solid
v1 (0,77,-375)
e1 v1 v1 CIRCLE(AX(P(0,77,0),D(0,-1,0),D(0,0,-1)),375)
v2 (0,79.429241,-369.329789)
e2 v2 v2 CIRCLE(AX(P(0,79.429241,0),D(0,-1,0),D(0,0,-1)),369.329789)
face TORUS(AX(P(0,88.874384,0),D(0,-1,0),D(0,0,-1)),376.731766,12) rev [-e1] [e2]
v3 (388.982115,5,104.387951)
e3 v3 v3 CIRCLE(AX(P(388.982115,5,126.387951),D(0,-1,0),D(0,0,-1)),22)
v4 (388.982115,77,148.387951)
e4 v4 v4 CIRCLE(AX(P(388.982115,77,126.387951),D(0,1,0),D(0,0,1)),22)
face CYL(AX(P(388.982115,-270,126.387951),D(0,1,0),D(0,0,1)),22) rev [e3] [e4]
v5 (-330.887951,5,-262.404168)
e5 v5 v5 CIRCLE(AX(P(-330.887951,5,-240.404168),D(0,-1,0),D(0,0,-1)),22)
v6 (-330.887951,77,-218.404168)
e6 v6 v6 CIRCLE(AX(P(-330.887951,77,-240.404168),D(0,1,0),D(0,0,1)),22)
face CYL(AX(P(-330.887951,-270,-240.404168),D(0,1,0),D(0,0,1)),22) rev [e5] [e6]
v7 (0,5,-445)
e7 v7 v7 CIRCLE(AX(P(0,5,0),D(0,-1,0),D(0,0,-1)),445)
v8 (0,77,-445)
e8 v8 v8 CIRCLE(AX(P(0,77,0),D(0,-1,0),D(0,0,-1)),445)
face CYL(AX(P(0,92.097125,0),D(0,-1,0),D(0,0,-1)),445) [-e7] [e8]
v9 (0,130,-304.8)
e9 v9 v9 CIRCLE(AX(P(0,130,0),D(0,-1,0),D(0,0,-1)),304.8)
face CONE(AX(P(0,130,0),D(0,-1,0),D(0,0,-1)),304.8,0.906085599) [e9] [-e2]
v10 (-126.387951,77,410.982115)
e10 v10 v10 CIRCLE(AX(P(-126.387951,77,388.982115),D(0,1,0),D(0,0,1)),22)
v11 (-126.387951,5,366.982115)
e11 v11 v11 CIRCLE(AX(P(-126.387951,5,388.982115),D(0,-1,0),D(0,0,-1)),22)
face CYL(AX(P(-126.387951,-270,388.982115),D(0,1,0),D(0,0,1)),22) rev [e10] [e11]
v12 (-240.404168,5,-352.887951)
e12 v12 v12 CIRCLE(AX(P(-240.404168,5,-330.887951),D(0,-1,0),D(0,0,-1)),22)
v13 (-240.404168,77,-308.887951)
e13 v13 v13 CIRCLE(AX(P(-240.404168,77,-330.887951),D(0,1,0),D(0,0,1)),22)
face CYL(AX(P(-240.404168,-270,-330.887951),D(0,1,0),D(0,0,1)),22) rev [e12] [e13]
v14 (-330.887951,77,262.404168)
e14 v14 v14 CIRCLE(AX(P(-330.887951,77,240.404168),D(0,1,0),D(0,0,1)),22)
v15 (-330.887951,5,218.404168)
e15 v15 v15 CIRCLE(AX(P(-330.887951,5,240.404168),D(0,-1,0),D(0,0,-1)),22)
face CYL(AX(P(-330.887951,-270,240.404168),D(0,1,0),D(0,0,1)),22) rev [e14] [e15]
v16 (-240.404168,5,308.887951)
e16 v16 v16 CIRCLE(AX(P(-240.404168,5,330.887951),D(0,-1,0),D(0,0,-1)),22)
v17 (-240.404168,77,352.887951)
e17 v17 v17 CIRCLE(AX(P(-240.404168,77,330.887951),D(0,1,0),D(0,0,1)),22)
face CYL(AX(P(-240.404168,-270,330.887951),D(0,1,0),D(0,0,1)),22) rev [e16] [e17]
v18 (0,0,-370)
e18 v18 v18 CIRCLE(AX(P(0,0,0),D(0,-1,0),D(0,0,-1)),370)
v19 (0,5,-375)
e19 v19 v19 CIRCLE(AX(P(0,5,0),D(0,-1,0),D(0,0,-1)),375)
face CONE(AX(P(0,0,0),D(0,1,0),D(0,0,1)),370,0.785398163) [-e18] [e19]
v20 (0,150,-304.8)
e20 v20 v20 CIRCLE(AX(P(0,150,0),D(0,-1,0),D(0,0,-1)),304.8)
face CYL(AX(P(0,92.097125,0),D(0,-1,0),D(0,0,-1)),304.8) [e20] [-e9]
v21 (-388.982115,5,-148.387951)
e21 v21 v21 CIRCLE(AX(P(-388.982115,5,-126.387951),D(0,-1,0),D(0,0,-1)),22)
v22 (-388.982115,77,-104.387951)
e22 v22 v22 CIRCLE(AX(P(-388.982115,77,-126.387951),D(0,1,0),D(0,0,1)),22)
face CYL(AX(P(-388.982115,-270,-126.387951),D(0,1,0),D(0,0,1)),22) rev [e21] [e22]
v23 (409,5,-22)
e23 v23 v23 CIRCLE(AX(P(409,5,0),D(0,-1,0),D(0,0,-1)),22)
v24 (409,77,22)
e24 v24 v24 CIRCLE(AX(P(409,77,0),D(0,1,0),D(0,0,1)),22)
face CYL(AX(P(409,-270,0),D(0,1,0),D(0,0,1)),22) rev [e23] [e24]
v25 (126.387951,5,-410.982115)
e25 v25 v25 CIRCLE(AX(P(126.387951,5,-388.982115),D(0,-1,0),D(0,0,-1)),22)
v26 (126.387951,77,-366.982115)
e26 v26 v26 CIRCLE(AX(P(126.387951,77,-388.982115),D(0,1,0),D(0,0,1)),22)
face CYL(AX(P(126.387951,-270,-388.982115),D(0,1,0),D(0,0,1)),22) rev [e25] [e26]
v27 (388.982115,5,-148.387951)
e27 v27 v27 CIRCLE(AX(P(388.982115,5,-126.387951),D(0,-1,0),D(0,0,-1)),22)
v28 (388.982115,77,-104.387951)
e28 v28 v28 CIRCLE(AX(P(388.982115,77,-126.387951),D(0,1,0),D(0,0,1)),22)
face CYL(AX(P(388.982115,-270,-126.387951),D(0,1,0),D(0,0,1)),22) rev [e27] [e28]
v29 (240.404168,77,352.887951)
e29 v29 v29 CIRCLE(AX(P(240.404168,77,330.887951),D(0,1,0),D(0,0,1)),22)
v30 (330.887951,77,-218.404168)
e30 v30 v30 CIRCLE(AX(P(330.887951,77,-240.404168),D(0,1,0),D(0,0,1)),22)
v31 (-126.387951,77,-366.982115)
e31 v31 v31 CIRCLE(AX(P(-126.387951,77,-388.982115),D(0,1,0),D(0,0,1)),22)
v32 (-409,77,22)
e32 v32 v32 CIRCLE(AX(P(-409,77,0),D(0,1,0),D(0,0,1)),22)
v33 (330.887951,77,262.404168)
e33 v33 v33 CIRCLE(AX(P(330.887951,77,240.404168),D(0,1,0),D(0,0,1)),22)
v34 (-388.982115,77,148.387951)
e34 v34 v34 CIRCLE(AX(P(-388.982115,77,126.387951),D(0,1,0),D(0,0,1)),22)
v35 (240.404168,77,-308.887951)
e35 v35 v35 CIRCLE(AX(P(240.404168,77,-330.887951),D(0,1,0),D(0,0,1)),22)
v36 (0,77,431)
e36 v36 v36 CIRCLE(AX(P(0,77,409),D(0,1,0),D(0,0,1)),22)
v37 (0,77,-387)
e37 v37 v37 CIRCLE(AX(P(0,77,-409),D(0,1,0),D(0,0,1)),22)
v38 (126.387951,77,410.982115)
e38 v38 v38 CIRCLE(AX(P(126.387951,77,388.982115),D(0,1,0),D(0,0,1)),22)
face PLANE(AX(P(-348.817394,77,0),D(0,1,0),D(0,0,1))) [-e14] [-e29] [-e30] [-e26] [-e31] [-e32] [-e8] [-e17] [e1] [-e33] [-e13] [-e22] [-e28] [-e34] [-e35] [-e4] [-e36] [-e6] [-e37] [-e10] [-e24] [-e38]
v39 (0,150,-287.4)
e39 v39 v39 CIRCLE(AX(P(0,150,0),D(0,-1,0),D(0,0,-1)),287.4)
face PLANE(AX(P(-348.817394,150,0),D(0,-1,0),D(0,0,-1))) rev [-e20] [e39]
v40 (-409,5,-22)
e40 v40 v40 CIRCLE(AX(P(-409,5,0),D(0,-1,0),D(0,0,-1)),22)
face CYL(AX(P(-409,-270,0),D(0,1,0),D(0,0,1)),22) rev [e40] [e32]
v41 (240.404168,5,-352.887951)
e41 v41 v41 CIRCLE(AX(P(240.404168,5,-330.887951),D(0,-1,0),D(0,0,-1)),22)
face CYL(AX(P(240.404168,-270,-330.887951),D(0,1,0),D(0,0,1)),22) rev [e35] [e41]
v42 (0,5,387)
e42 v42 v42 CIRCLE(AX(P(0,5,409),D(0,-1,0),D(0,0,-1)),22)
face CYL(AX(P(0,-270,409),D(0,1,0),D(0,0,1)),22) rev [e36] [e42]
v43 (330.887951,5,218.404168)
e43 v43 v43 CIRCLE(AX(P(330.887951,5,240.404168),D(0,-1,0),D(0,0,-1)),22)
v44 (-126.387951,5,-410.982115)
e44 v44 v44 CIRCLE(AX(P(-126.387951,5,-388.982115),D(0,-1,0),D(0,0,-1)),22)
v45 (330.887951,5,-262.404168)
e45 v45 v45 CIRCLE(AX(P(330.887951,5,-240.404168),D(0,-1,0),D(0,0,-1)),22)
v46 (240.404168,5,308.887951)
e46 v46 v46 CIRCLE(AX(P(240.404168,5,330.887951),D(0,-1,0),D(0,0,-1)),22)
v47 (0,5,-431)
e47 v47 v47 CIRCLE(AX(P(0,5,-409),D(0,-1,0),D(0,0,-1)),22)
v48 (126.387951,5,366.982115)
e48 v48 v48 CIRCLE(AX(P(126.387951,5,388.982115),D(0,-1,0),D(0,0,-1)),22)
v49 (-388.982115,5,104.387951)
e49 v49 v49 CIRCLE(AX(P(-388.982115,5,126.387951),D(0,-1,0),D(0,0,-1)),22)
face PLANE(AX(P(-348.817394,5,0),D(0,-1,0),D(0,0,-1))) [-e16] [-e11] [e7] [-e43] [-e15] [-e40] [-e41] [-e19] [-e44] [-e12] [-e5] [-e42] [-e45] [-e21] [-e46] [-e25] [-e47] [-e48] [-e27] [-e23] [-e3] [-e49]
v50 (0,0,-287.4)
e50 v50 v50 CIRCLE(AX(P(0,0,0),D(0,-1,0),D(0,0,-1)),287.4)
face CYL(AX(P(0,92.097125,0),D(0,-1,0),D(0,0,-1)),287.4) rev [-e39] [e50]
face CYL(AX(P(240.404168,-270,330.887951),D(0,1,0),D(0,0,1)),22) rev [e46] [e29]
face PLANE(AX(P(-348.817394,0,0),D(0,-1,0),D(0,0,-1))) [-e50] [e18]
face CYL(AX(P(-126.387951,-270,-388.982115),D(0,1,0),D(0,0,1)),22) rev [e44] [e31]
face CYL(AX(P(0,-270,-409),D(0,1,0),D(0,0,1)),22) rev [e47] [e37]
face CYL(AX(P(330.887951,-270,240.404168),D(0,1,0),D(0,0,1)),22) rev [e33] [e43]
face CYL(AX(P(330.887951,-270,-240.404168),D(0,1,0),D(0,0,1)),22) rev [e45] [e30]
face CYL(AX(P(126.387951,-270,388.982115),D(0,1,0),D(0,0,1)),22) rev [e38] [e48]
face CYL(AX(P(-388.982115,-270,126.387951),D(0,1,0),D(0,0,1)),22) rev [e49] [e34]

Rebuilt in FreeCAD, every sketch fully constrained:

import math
import FreeCAD as App
import Part
import Sketcher
from FreeCAD import Vector
Q = App.Units.Quantity

doc = App.newDocument("Part")
params = doc.addObject("Spreadsheet::Sheet", "Params")
for row, (alias, value) in enumerate([
    ("sketch1_radius", "12 mm"),
    ("sketch1_width", "70 mm"),
    ("sketch1_height", "20 mm"),
    ("sketch1_height2", "150 mm"),
    ("sketch1_height3", "72 mm"),
    ("revolution_angle", "360 deg"),
    ("sketch2_diameter", "44 mm"),
    ("pocket1_length", "540 mm"),
], start=1):
    params.set(f"A{row}", alias)
    params.set(f"B{row}", "=" + value)
    params.setAlias(f"B{row}", alias)

body = doc.addObject("PartDesign::Body", "Body")

sketch1 = body.newObject("Sketcher::SketchObject", "Sketch")
sketch1.AttachmentSupport = (doc.getObject("XY_Plane"), [""])
sketch1.MapMode = "FlatFace"
sketch1.addGeometry([
    Part.LineSegment(Vector(445, 77, 0), Vector(375, 77, 0)),
    Part.ArcOfCircle(Part.Circle(Vector(377, 89, 0), Vector(0, 0, 1), 12), math.radians(-128), math.radians(-98)),
    Part.LineSegment(Vector(369, 79, 0), Vector(305, 130, 0)),
    Part.LineSegment(Vector(305, 130, 0), Vector(305, 150, 0)),
    Part.LineSegment(Vector(305, 150, 0), Vector(287, 150, 0)),
    Part.LineSegment(Vector(287, 150, 0), Vector(287, 0, 0)),
    Part.LineSegment(Vector(287, 0, 0), Vector(370, 0, 0)),
    Part.LineSegment(Vector(370, 0, 0), Vector(375, 5, 0)),
    Part.LineSegment(Vector(375, 5, 0), Vector(445, 5, 0)),
    Part.LineSegment(Vector(445, 5, 0), Vector(445, 77, 0)),
], False)
sketch1.addConstraint([
    Sketcher.Constraint("Coincident", 0, 2, 1, 2),
    Sketcher.Constraint("Tangent", 1, 1, 2, 1),
    Sketcher.Constraint("Coincident", 2, 2, 3, 1),
    Sketcher.Constraint("Coincident", 3, 2, 4, 1),
    Sketcher.Constraint("Coincident", 4, 2, 5, 1),
    Sketcher.Constraint("Coincident", 5, 2, 6, 1),
    Sketcher.Constraint("Coincident", 6, 2, 7, 1),
    Sketcher.Constraint("Coincident", 7, 2, 8, 1),
    Sketcher.Constraint("Coincident", 8, 2, 9, 1),
    Sketcher.Constraint("Coincident", 9, 2, 0, 1),
    Sketcher.Constraint("Horizontal", 0),
    Sketcher.Constraint("Vertical", 3),
    Sketcher.Constraint("Horizontal", 4),
    Sketcher.Constraint("Vertical", 5),
    Sketcher.Constraint("Horizontal", 6),
    Sketcher.Constraint("Horizontal", 8),
    Sketcher.Constraint("Vertical", 9),
    Sketcher.Constraint("PointOnObject", 5, 2, -1),
    Sketcher.Constraint("Vertical", 0, 2, 7, 2),
    Sketcher.Constraint("Radius", 1, 12.0),
    Sketcher.Constraint("DistanceX", 0, 2, 0, 1, 70.0),
    Sketcher.Constraint("DistanceY", 3, 1, 3, 2, 20.0),
    Sketcher.Constraint("DistanceY", 5, 2, 5, 1, 150.0),
    Sketcher.Constraint("DistanceY", 9, 1, 9, 2, 72.0),
    Sketcher.Constraint("Angle", 7, Q("45 deg")),
    Sketcher.Constraint("DistanceX", 4, 2, 4, 1, 17.4),
    Sketcher.Constraint("DistanceX", 6, 1, 6, 2, 82.6),
    Sketcher.Constraint("DistanceX", -1, 1, 0, 2, 375.0),
    Sketcher.Constraint("DistanceY", -1, 1, 0, 2, 77.0),
    Sketcher.Constraint("DistanceX", -1, 1, 1, 1, 369.329789),
])
sketch1.setExpression("Constraints[19]", "Params.sketch1_radius")
sketch1.setExpression("Constraints[20]", "Params.sketch1_width")
sketch1.setExpression("Constraints[21]", "Params.sketch1_height")
sketch1.setExpression("Constraints[22]", "Params.sketch1_height2")
sketch1.setExpression("Constraints[23]", "Params.sketch1_height3")
revolution = body.newObject("PartDesign::Revolution", "Revolution")
revolution.Profile = sketch1
revolution.ReferenceAxis = (sketch1, ["V_Axis"])
revolution.setExpression("Angle", "Params.revolution_angle")

sketch2 = body.newObject("Sketcher::SketchObject", "Sketch001")
sketch2.AttachmentSupport = (doc.getObject("XZ_Plane"), [""])
sketch2.MapMode = "FlatFace"
sketch2.addGeometry([
    Part.Circle(Vector(409, 0, 0), Vector(0, 0, 1), 22),
    Part.Circle(Vector(389, 126, 0), Vector(0, 0, 1), 22),
    Part.Circle(Vector(331, 240, 0), Vector(0, 0, 1), 22),
    Part.Circle(Vector(240, 331, 0), Vector(0, 0, 1), 22),
    Part.Circle(Vector(126, 389, 0), Vector(0, 0, 1), 22),
    Part.Circle(Vector(0, 409, 0), Vector(0, 0, 1), 22),
    Part.Circle(Vector(-126, 389, 0), Vector(0, 0, 1), 22),
    Part.Circle(Vector(-240, 331, 0), Vector(0, 0, 1), 22),
    Part.Circle(Vector(-331, 240, 0), Vector(0, 0, 1), 22),
    Part.Circle(Vector(-389, 126, 0), Vector(0, 0, 1), 22),
    Part.Circle(Vector(-409, 0, 0), Vector(0, 0, 1), 22),
    Part.Circle(Vector(-389, -126, 0), Vector(0, 0, 1), 22),
    Part.Circle(Vector(-331, -240, 0), Vector(0, 0, 1), 22),
    Part.Circle(Vector(-240, -331, 0), Vector(0, 0, 1), 22),
    Part.Circle(Vector(-126, -389, 0), Vector(0, 0, 1), 22),
    Part.Circle(Vector(0, -409, 0), Vector(0, 0, 1), 22),
    Part.Circle(Vector(126, -389, 0), Vector(0, 0, 1), 22),
    Part.Circle(Vector(240, -331, 0), Vector(0, 0, 1), 22),
    Part.Circle(Vector(331, -240, 0), Vector(0, 0, 1), 22),
    Part.Circle(Vector(389, -126, 0), Vector(0, 0, 1), 22),
], False)
sketch2.addConstraint([
    Sketcher.Constraint("Equal", 0, 1),
    Sketcher.Constraint("Equal", 1, 2),
    Sketcher.Constraint("Equal", 2, 3),
    Sketcher.Constraint("Equal", 3, 4),
    Sketcher.Constraint("Equal", 4, 5),
    Sketcher.Constraint("Equal", 5, 6),
    Sketcher.Constraint("Equal", 6, 7),
    Sketcher.Constraint("Equal", 7, 8),
    Sketcher.Constraint("Equal", 8, 9),
    Sketcher.Constraint("Equal", 9, 10),
    Sketcher.Constraint("Equal", 10, 11),
    Sketcher.Constraint("Equal", 11, 12),
    Sketcher.Constraint("Equal", 12, 13),
    Sketcher.Constraint("Equal", 13, 14),
    Sketcher.Constraint("Equal", 14, 15),
    Sketcher.Constraint("Equal", 15, 16),
    Sketcher.Constraint("Equal", 16, 17),
    Sketcher.Constraint("Equal", 17, 18),
    Sketcher.Constraint("Equal", 18, 19),
    Sketcher.Constraint("Symmetric", 0, 3, 10, 3, -1, 1),
    Sketcher.Constraint("Symmetric", 1, 3, 11, 3, -1, 1),
    Sketcher.Constraint("Symmetric", 2, 3, 12, 3, -1, 1),
    Sketcher.Constraint("Symmetric", 3, 3, 13, 3, -1, 1),
    Sketcher.Constraint("Symmetric", 4, 3, 14, 3, -1, 1),
    Sketcher.Constraint("Symmetric", 5, 3, 15, 3, -1, 1),
    Sketcher.Constraint("Symmetric", 6, 3, 16, 3, -1, 1),
    Sketcher.Constraint("Symmetric", 7, 3, 17, 3, -1, 1),
    Sketcher.Constraint("Symmetric", 8, 3, 18, 3, -1, 1),
    Sketcher.Constraint("Symmetric", 9, 3, 19, 3, -1, 1),
    Sketcher.Constraint("Symmetric", 4, 3, 6, 3, -2),
    Sketcher.Constraint("Symmetric", 3, 3, 7, 3, -2),
    Sketcher.Constraint("Symmetric", 2, 3, 8, 3, -2),
    Sketcher.Constraint("Symmetric", 1, 3, 9, 3, -2),
    Sketcher.Constraint("PointOnObject", 0, 3, -1),
    Sketcher.Constraint("PointOnObject", 5, 3, -2),
    Sketcher.Constraint("Diameter", 0, 44.0),
    Sketcher.Constraint("DistanceX", -1, 1, 0, 3, 409.0),
    Sketcher.Constraint("DistanceY", -1, 1, 5, 3, 409.0),
    Sketcher.Constraint("DistanceY", 1, 3, 3, 3, 204.5),
    Sketcher.Constraint("DistanceX", 4, 3, 2, 3, 204.5),
    Sketcher.Constraint("DistanceX", 6, 3, 4, 3, 252.775901),
    Sketcher.Constraint("DistanceY", 11, 3, 9, 3, 252.775901),
    Sketcher.Constraint("DistanceY", -1, 1, 2, 3, 240.404168),
    Sketcher.Constraint("DistanceX", -1, 1, 3, 3, 240.404168),
    Sketcher.Constraint("DistanceX", -1, 1, 1, 3, 388.982115),
    Sketcher.Constraint("DistanceY", -1, 1, 4, 3, 388.982115),
])
sketch2.setExpression("Constraints[35]", "Params.sketch2_diameter")
pocket1 = body.newObject("PartDesign::Pocket", "Pocket")
pocket1.Profile = sketch2
pocket1.setExpression("Length", "Params.pocket1_length")
pocket1.Midplane = True

doc.recompute()
